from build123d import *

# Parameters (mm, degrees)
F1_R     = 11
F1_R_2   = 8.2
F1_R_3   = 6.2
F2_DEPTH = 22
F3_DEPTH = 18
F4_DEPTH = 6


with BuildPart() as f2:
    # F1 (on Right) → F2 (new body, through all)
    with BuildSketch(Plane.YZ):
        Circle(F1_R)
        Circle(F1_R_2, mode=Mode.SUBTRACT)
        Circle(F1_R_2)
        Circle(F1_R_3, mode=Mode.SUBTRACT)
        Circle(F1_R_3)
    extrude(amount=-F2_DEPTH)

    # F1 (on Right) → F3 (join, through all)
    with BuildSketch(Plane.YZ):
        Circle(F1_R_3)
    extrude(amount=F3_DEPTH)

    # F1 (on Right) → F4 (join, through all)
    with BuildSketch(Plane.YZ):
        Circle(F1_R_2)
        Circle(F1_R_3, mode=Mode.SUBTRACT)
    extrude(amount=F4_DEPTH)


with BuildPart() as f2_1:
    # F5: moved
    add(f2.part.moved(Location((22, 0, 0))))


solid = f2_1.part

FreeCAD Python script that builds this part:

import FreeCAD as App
import Part
import Sketcher

doc = App.newDocument("Part")
body = doc.addObject("PartDesign::Body", "Body")

sketch1 = body.newObject("Sketcher::SketchObject", "Sketch")
sketch1.AttachmentSupport = (doc.getObject("YZ_Plane"), [""])
sketch1.MapMode = "FlatFace"
sketch1.addGeometry(Part.Circle(App.Vector(0, 0, 0), App.Vector(0, 0, 1), 11), False)
sketch1.addConstraint(Sketcher.Constraint("Coincident", 0, 3, -1, 1))
sketch1.addConstraint(Sketcher.Constraint("Diameter", 0, 22.0))
pad1 = body.newObject("PartDesign::Pad", "Pad")
pad1.Profile = sketch1
pad1.Length = 22
pad1.Reversed = True

sketch2 = body.newObject("Sketcher::SketchObject", "Sketch001")
sketch2.AttachmentSupport = (doc.getObject("YZ_Plane"), [""])
sketch2.MapMode = "FlatFace"
sketch2.addGeometry(Part.Circle(App.Vector(0, 0, 0), App.Vector(0, 0, 1), 6), False)
sketch2.addConstraint(Sketcher.Constraint("Coincident", 0, 3, -1, 1))
sketch2.addConstraint(Sketcher.Constraint("Diameter", 0, 12.4))
pad2 = body.newObject("PartDesign::Pad", "Pad001")
pad2.Profile = sketch2
pad2.Length = 18

sketch3 = body.newObject("Sketcher::SketchObject", "Sketch002")
sketch3.AttachmentSupport = (doc.getObject("YZ_Plane"), [""])
sketch3.MapMode = "FlatFace"
sketch3.addGeometry(Part.Circle(App.Vector(0, 0, 0), App.Vector(0, 0, 1), 8), False)
sketch3.addGeometry(Part.Circle(App.Vector(0, 0, 0), App.Vector(0, 0, 1), 6), False)
sketch3.addConstraint(Sketcher.Constraint("Coincident", 0, 3, -1, 1))
sketch3.addConstraint(Sketcher.Constraint("Coincident", 1, 3, -1, 1))
sketch3.addConstraint(Sketcher.Constraint("Diameter", 0, 16.4))
sketch3.addConstraint(Sketcher.Constraint("Diameter", 1, 12.4))
pad3 = body.newObject("PartDesign::Pad", "Pad002")
pad3.Profile = sketch3
pad3.Length = 6
body2 = doc.addObject("PartDesign::Body", "Body001")
doc.recompute()

body.Placement = App.Placement(App.Vector(22, 0, 0), App.Rotation(App.Vector(0, 0, 1), 0))
boolean = body2.newObject("PartDesign::Boolean", "Boolean")
boolean.Type = "Fuse"
boolean.addObjects([body])

doc.recompute()
